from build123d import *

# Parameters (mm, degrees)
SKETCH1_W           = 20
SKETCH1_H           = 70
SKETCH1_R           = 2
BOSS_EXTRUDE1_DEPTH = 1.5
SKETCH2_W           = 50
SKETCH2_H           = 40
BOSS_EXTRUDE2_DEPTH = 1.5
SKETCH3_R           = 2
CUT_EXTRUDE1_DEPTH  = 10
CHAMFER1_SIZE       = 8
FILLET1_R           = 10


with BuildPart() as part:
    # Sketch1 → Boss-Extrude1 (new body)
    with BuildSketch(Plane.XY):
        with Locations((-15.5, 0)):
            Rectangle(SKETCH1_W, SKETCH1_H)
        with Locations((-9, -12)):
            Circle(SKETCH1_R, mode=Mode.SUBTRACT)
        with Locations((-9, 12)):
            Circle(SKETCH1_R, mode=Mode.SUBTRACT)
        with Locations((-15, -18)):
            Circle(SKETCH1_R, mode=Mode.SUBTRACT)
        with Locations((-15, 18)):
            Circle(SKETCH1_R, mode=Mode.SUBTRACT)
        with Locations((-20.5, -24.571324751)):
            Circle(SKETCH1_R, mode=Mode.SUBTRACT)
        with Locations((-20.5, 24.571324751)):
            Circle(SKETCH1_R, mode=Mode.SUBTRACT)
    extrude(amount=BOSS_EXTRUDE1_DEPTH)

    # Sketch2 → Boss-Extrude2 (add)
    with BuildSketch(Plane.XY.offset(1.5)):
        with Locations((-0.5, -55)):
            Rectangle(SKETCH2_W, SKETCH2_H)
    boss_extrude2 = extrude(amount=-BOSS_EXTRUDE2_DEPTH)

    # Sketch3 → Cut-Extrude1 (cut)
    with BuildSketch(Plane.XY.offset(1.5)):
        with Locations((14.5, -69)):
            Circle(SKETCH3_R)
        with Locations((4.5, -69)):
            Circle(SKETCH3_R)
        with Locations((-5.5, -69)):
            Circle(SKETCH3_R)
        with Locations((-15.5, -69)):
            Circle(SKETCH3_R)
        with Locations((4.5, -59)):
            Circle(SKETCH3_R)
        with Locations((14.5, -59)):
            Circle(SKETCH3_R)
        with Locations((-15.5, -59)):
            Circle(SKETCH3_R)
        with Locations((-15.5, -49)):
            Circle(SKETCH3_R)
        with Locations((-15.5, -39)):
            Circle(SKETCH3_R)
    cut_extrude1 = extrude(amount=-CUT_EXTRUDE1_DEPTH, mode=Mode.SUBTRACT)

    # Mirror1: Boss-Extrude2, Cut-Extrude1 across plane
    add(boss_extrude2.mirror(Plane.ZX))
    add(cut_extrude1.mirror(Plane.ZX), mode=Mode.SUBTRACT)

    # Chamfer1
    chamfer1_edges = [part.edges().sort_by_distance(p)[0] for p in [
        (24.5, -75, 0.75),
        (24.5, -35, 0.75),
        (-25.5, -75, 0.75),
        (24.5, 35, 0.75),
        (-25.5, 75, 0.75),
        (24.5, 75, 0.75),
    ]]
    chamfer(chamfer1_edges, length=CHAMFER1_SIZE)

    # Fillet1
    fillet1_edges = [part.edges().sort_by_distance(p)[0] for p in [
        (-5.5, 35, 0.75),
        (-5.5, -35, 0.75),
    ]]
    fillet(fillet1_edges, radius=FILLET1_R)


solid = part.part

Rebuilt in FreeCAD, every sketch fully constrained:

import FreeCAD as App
import Part
import Sketcher
Q = App.Units.Quantity


def edges_at(feature, points):
    """Names of the edges that pass closest to the given points."""
    edges = feature.Shape.Edges
    near = lambda p: min(range(len(edges)), key=lambda i: edges[i].distToShape(Part.Vertex(*p))[0])
    return sorted({f"Edge{near(p) + 1}" for p in points})

doc = App.newDocument("Part")
body = doc.addObject("PartDesign::Body", "Body")

# Sketch on XY plane
sketch1 = doc.addObject("Sketcher::SketchObject", "Sketch")
body.addObject(sketch1)
sketch1.AttachmentSupport = (doc.XY_Plane, [""])
sketch1.MapMode = "FlatFace"
sketch1.addGeometry([
    Part.LineSegment(App.Vector(-25.5, 35, 0), App.Vector(-25.5, -35, 0)),  # 0
    Part.LineSegment(App.Vector(-25.5, -35, 0), App.Vector(-5.5, -35, 0)),  # 1
    Part.LineSegment(App.Vector(-5.5, -35, 0), App.Vector(-5.5, 35, 0)),  # 2
    Part.LineSegment(App.Vector(-5.5, 35, 0), App.Vector(-25.5, 35, 0)),  # 3
    Part.Circle(App.Vector(-20.5, -24.6, 0), App.Vector(0, 0, 1), 2),  # 4
    Part.Circle(App.Vector(-15, -18, 0), App.Vector(0, 0, 1), 2),  # 5
    Part.Circle(App.Vector(-9, -12, 0), App.Vector(0, 0, 1), 2),  # 6
    Part.Circle(App.Vector(-20.5, 24.6, 0), App.Vector(0, 0, 1), 2),  # 7
    Part.Circle(App.Vector(-15, 18, 0), App.Vector(0, 0, 1), 2),  # 8
    Part.Circle(App.Vector(-9, 12, 0), App.Vector(0, 0, 1), 2),  # 9
], False)
sketch1.addConstraint([
    Sketcher.Constraint("Coincident", 0, 2, 1, 1),
    Sketcher.Constraint("Coincident", 1, 2, 2, 1),
    Sketcher.Constraint("Coincident", 2, 2, 3, 1),
    Sketcher.Constraint("Coincident", 3, 2, 0, 1),
    Sketcher.Constraint("Vertical", 0),
    Sketcher.Constraint("Horizontal", 1),
    Sketcher.Constraint("Vertical", 2),
    Sketcher.Constraint("Horizontal", 3),
    Sketcher.Constraint("Equal", 4, 5),
    Sketcher.Constraint("Equal", 5, 6),
    Sketcher.Constraint("Equal", 6, 7),
    Sketcher.Constraint("Equal", 7, 8),
    Sketcher.Constraint("Equal", 8, 9),
    Sketcher.Constraint("Symmetric", 4, 3, 7, 3, -1),
    Sketcher.Constraint("Symmetric", 5, 3, 8, 3, -1),
    Sketcher.Constraint("Symmetric", 6, 3, 9, 3, -1),
    Sketcher.Constraint("Diameter", 4, Q("4 mm")),
    Sketcher.Constraint("DistanceX", 1, 1, 1, 2, Q("20 mm")),
    Sketcher.Constraint("DistanceY", 0, 2, 0, 1, Q("70 mm")),
    Sketcher.Constraint("DistanceX", 5, 3, -1, 1, Q("15 mm")),
    Sketcher.Constraint("DistanceY", 5, 3, -1, 1, Q("18 mm")),
    Sketcher.Constraint("DistanceX", 6, 3, -1, 1, Q("9 mm")),
    Sketcher.Constraint("DistanceY", 6, 3, -1, 1, Q("12 mm")),
    Sketcher.Constraint("DistanceY", 0, 2, -1, 1, Q("35 mm")),
    Sketcher.Constraint("DistanceX", 0, 2, 4, 3, Q("5 mm")),
    Sketcher.Constraint("DistanceX", 4, 3, -1, 1, Q("20.5 mm")),
    Sketcher.Constraint("DistanceY", 4, 3, 7, 3, Q("49.14265 mm")),
])
pad1 = doc.addObject("PartDesign::Pad", "Pad")
body.addObject(pad1)
pad1.Profile = sketch1
pad1.Length = 1.5

# Sketch on XY plane
sketch2 = doc.addObject("Sketcher::SketchObject", "Sketch001")
body.addObject(sketch2)
sketch2.AttachmentSupport = (doc.XY_Plane, [""])
sketch2.MapMode = "FlatFace"
sketch2.AttachmentOffset = App.Placement(App.Vector(0, 0, 1.5), App.Rotation())
sketch2.addGeometry([
    Part.LineSegment(App.Vector(-26, -35, 0), App.Vector(-26, -75, 0)),
    Part.LineSegment(App.Vector(-26, -75, 0), App.Vector(24, -75, 0)),
    Part.LineSegment(App.Vector(24, -75, 0), App.Vector(24, -35, 0)),
    Part.LineSegment(App.Vector(24, -35, 0), App.Vector(-26, -35, 0)),
], False)
sketch2.addConstraint([
    Sketcher.Constraint("Coincident", 0, 2, 1, 1),
    Sketcher.Constraint("Coincident", 1, 2, 2, 1),
    Sketcher.Constraint("Coincident", 2, 2, 3, 1),
    Sketcher.Constraint("Coincident", 3, 2, 0, 1),
    Sketcher.Constraint("Vertical", 0),
    Sketcher.Constraint("Horizontal", 1),
    Sketcher.Constraint("Vertical", 2),
    Sketcher.Constraint("Horizontal", 3),
    Sketcher.Constraint("DistanceX", 1, 1, 1, 2, Q("50 mm")),
    Sketcher.Constraint("DistanceY", 0, 2, 0, 1, Q("40 mm")),
    Sketcher.Constraint("DistanceY", 0, 2, -1, 1, Q("75 mm")),
    Sketcher.Constraint("DistanceX", 0, 2, -1, 1, Q("25.5 mm")),
])
pad2 = doc.addObject("PartDesign::Pad", "Pad001")
body.addObject(pad2)
pad2.Profile = sketch2
pad2.Length = 1.5
pad2.Reversed = True

# Sketch on XY plane
sketch3 = doc.addObject("Sketcher::SketchObject", "Sketch002")
body.addObject(sketch3)
sketch3.AttachmentSupport = (doc.XY_Plane, [""])
sketch3.MapMode = "FlatFace"
sketch3.AttachmentOffset = App.Placement(App.Vector(0, 0, 1.5), App.Rotation())
sketch3.addGeometry([
    Part.Circle(App.Vector(14.5, -69, 0), App.Vector(0, 0, 1), 2),  # 0
    Part.Circle(App.Vector(4.5, -69, 0), App.Vector(0, 0, 1), 2),  # 1
    Part.Circle(App.Vector(-5.5, -69, 0), App.Vector(0, 0, 1), 2),  # 2
    Part.Circle(App.Vector(-15.5, -69, 0), App.Vector(0, 0, 1), 2),  # 3
    Part.Circle(App.Vector(4.5, -59, 0), App.Vector(0, 0, 1), 2),  # 4
    Part.Circle(App.Vector(14.5, -59, 0), App.Vector(0, 0, 1), 2),  # 5
    Part.Circle(App.Vector(-15.5, -59, 0), App.Vector(0, 0, 1), 2),  # 6
    Part.Circle(App.Vector(-15.5, -49, 0), App.Vector(0, 0, 1), 2),  # 7
    Part.Circle(App.Vector(-15.5, -39, 0), App.Vector(0, 0, 1), 2),  # 8
], False)
sketch3.addConstraint([
    Sketcher.Constraint("Equal", 0, 1),
    Sketcher.Constraint("Equal", 1, 2),
    Sketcher.Constraint("Equal", 2, 3),
    Sketcher.Constraint("Equal", 3, 4),
    Sketcher.Constraint("Equal", 4, 5),
    Sketcher.Constraint("Equal", 5, 6),
    Sketcher.Constraint("Equal", 6, 7),
    Sketcher.Constraint("Equal", 7, 8),
    Sketcher.Constraint("Horizontal", 0, 3, 1, 3),
    Sketcher.Constraint("Horizontal", 1, 3, 2, 3),
    Sketcher.Constraint("Horizontal", 2, 3, 3, 3),
    Sketcher.Constraint("Horizontal", 4, 3, 5, 3),
    Sketcher.Constraint("Horizontal", 5, 3, 6, 3),
    Sketcher.Constraint("Vertical", 1, 3, 4, 3),
    Sketcher.Constraint("Vertical", 0, 3, 5, 3),
    Sketcher.Constraint("Vertical", 3, 3, 6, 3),
    Sketcher.Constraint("Vertical", 6, 3, 7, 3),
    Sketcher.Constraint("Vertical", 7, 3, 8, 3),
    Sketcher.Constraint("Diameter", 0, Q("4 mm")),
    Sketcher.Constraint("DistanceY", 0, 3, -1, 1, Q("69 mm")),
    Sketcher.Constraint("DistanceY", 4, 3, -1, 1, Q("59 mm")),
    Sketcher.Constraint("DistanceY", 7, 3, -1, 1, Q("49 mm")),
    Sketcher.Constraint("DistanceY", 8, 3, -1, 1, Q("39 mm")),
    Sketcher.Constraint("DistanceX", 1, 3, 0, 3, Q("10 mm")),
    Sketcher.Constraint("DistanceX", 2, 3, 1, 3, Q("10 mm")),
    Sketcher.Constraint("DistanceX", 3, 3, 2, 3, Q("10 mm")),
    Sketcher.Constraint("DistanceX", -1, 1, 0, 3, Q("14.5 mm")),
])
pocket1 = doc.addObject("PartDesign::Pocket", "Pocket")
body.addObject(pocket1)
pocket1.Profile = sketch3
pocket1.Length = 10
doc.recompute()

mirrored = doc.addObject("PartDesign::Mirrored", "Mirrored")
body.addObject(mirrored)
mirrored.Originals = [pad2, pocket1]
mirrored.MirrorPlane = (doc.XZ_Plane, [""])
body.Tip = mirrored
doc.recompute()

chamfer = doc.addObject("PartDesign::Chamfer", "Chamfer")
body.addObject(chamfer)
chamfer.Base = (mirrored, edges_at(mirrored, [
    (24.5, -75, 0.75),
    (24.5, -35, 0.75),
    (-25.5, -75, 0.75),
    (24.5, 35, 0.75),
    (-25.5, 75, 0.75),
    (24.5, 75, 0.75),
]))
chamfer.Size = 8
doc.recompute()

fillet = doc.addObject("PartDesign::Fillet", "Fillet")
body.addObject(fillet)
fillet.Base = (chamfer, edges_at(chamfer, [(-5.5, 35, 0.75), (-5.5, -35, 0.75)]))
fillet.Radius = 10

doc.recompute()
